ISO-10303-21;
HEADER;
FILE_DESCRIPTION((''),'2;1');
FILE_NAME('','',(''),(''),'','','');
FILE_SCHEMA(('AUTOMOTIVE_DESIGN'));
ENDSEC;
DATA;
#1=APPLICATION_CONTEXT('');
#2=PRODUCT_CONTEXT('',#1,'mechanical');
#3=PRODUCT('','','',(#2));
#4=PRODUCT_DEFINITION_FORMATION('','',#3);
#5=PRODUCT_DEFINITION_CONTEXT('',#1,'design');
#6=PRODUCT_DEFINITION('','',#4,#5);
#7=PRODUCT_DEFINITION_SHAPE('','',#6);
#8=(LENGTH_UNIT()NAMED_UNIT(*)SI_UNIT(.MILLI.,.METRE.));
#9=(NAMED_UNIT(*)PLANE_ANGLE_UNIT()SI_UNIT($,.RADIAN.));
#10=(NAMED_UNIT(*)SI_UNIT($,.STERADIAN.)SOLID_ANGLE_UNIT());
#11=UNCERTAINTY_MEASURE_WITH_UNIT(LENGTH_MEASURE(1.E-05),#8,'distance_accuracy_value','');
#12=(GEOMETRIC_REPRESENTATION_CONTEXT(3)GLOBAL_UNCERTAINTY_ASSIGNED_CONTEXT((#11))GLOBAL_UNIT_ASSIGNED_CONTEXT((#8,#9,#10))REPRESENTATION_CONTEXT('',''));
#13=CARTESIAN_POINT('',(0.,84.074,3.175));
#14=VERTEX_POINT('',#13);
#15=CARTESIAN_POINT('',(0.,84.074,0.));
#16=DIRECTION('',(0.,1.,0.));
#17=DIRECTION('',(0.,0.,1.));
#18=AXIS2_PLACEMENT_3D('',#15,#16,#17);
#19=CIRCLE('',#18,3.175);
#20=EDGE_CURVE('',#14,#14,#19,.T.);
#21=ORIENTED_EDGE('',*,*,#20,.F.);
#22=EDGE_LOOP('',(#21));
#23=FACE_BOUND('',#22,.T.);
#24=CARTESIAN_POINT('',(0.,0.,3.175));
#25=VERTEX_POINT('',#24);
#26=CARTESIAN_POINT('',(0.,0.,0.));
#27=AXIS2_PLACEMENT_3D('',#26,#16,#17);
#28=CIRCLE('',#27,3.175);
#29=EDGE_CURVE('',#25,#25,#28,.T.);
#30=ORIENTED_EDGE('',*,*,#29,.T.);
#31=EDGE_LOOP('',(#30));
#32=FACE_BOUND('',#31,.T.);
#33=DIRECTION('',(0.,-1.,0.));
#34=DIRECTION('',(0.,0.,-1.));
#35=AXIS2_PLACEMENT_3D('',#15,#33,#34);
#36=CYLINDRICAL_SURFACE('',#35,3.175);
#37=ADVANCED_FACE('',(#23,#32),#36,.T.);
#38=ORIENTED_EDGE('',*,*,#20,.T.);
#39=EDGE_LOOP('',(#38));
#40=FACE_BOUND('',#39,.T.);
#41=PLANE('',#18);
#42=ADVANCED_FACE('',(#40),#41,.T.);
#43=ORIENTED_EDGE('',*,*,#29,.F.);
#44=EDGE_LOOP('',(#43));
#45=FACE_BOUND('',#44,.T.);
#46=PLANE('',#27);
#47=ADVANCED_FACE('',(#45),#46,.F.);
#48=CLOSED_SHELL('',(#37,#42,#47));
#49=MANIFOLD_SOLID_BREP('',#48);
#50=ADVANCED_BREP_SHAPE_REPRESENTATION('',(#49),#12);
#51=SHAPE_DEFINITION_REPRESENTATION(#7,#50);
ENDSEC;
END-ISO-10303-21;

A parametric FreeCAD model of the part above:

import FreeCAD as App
import Part
import Sketcher
Q = App.Units.Quantity

doc = App.newDocument("Part")
params = doc.addObject("Spreadsheet::Sheet", "Params")
for row, (alias, value) in enumerate([
    ("sketch1_diameter", "0.25 in"),
    ("pad1_length", "3.31 in"),
], start=1):
    params.set(f"A{row}", alias)
    params.set(f"B{row}", "=" + value)
    params.setAlias(f"B{row}", alias)

body = doc.addObject("PartDesign::Body", "Body")

# Sketch on XZ plane
sketch1 = body.newObject("Sketcher::SketchObject", "Sketch")
sketch1.AttachmentSupport = (doc.getObject("XZ_Plane"), [""])
sketch1.MapMode = "FlatFace"
sketch1.addGeometry(Part.Circle(App.Vector(0, 0, 0), App.Vector(0, 0, 1), 3.2), False)
sketch1.addConstraint([
    Sketcher.Constraint("Coincident", 0, 3, -1, 1),
    Sketcher.Constraint("Diameter", 0, Q("0.25 in")),
])
sketch1.setExpression("Constraints[1]", "Params.sketch1_diameter")
pad1 = body.newObject("PartDesign::Pad", "Pad")
pad1.Profile = sketch1
pad1.setExpression("Length", "Params.pad1_length")
pad1.Reversed = True

doc.recompute()
